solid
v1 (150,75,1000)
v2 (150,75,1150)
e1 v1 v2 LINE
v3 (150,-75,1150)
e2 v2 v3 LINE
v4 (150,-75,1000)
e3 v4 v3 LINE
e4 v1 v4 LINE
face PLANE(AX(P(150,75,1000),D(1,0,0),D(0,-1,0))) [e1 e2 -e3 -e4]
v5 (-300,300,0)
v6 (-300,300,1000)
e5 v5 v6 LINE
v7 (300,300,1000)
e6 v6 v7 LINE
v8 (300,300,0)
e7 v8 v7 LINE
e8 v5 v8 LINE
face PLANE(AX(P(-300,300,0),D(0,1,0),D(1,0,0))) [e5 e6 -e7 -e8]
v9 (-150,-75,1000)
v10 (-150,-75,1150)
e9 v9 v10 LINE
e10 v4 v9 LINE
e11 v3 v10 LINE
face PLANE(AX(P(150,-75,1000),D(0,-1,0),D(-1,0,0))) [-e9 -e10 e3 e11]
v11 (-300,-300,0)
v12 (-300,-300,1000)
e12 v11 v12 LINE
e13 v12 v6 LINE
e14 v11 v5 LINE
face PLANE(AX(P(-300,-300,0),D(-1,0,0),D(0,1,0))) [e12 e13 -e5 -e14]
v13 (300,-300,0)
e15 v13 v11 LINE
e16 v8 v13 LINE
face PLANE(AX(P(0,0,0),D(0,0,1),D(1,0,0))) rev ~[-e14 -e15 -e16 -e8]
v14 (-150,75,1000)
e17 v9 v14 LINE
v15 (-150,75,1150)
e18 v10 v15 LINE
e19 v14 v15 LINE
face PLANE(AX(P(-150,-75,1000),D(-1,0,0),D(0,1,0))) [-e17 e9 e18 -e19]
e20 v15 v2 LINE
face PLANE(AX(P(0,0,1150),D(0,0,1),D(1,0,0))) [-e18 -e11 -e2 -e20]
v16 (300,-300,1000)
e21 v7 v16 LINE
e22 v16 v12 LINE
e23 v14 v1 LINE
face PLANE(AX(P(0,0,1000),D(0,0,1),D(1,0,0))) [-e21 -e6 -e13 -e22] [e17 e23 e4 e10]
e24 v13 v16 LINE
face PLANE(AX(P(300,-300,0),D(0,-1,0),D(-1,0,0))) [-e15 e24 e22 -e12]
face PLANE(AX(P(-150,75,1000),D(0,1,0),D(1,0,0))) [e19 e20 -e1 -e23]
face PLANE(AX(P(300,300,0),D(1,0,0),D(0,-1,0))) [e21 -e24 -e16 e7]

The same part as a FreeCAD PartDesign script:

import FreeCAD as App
import Part
import Sketcher


def add_polygon(sketch, points):
    """Adds a closed chain of lines whose ends are joined by coincident constraints."""
    first, n = sketch.GeometryCount, len(points)
    for a, b in zip(points, points[1:] + points[:1]):
        sketch.addGeometry(Part.LineSegment(App.Vector(*a, 0), App.Vector(*b, 0)), False)
    for i in range(n):
        sketch.addConstraint(Sketcher.Constraint("Coincident", first + i, 2, first + (i + 1) % n, 1))

doc = App.newDocument("Part")
body = doc.addObject("PartDesign::Body", "Body")

sketch1 = body.newObject("Sketcher::SketchObject", "Sketch")
sketch1.AttachmentSupport = (doc.getObject("XY_Plane"), [""])
sketch1.MapMode = "FlatFace"
add_polygon(sketch1, [(300, 300), (-300, 300), (-300, -300), (300, -300)])
sketch1.addConstraint([
    Sketcher.Constraint("Horizontal", 0),
    Sketcher.Constraint("Vertical", 1),
    Sketcher.Constraint("Horizontal", 2),
    Sketcher.Constraint("Vertical", 3),
    Sketcher.Constraint("Symmetric", 0, 2, 2, 2, -1, 1),
    Sketcher.Constraint("Equal", 2, 1),
    Sketcher.Constraint("DistanceX", 0, 2, 0, 1, 600.0),
])
pad1 = body.newObject("PartDesign::Pad", "Pad")
pad1.Profile = sketch1
pad1.Length = 1000

sketch2 = body.newObject("Sketcher::SketchObject", "Sketch001")
sketch2.AttachmentSupport = (doc.getObject("XY_Plane"), [""])
sketch2.MapMode = "FlatFace"
sketch2.AttachmentOffset = App.Placement(App.Vector(0, 0, 1000), App.Rotation())
add_polygon(sketch2, [(150, 75), (-150, 75), (-150, -75), (150, -75)])
sketch2.addConstraint([
    Sketcher.Constraint("Horizontal", 0),
    Sketcher.Constraint("Vertical", 1),
    Sketcher.Constraint("Horizontal", 2),
    Sketcher.Constraint("Vertical", 3),
    Sketcher.Constraint("Symmetric", 0, 2, 2, 2, -1, 1),
    Sketcher.Constraint("DistanceX", 0, 2, 0, 1, 300.0),
    Sketcher.Constraint("DistanceY", 1, 2, 1, 1, 150.0),
])
pad2 = body.newObject("PartDesign::Pad", "Pad001")
pad2.Profile = sketch2
pad2.Length = 150

doc.recompute()
